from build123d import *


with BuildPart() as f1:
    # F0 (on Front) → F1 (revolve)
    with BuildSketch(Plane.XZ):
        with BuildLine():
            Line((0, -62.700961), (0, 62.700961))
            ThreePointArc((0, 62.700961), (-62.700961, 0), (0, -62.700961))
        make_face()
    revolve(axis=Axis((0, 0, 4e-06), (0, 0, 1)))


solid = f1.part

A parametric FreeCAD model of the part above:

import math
import FreeCAD as App
import Part
import Sketcher

V = App.Vector
Q = App.Units.Quantity

doc = App.newDocument("Part")
params = doc.addObject("Spreadsheet::Sheet", "Params")
for row, (alias, value) in enumerate([
    ("revolution_angle", "360 deg"),
], start=1):
    params.set(f"A{row}", alias)
    params.set(f"B{row}", "=" + value)
    params.setAlias(f"B{row}", alias)

body = doc.addObject("PartDesign::Body", "Body")

# Sketch on XZ plane
sketch1 = body.newObject("Sketcher::SketchObject", "Sketch")
sketch1.AttachmentSupport = (doc.getObject("XZ_Plane"), [""])
sketch1.MapMode = "FlatFace"
sketch1.addGeometry([
    Part.LineSegment(V(0, -63, 0), V(0, 63, 0)),
    Part.ArcOfCircle(Part.Circle(V(0, 0, 0), V(0, 0, 1), 63), math.radians(90), math.radians(270)),
], False)
sketch1.addConstraint([
    Sketcher.Constraint("Coincident", 0, 1, 1, 2),
    Sketcher.Constraint("Coincident", 1, 1, 0, 2),
    Sketcher.Constraint("Vertical", 0),
    Sketcher.Constraint("Coincident", 1, 3, -1, 1),
    Sketcher.Constraint("PointOnObject", 0, 1, -2),
    Sketcher.Constraint("Radius", 1, Q("62.700961 mm")),
])
revolution = body.newObject("PartDesign::Revolution", "Revolution")
revolution.Profile = sketch1
revolution.ReferenceAxis = (sketch1, ["V_Axis"])
revolution.setExpression("Angle", "Params.revolution_angle")

doc.recompute()
